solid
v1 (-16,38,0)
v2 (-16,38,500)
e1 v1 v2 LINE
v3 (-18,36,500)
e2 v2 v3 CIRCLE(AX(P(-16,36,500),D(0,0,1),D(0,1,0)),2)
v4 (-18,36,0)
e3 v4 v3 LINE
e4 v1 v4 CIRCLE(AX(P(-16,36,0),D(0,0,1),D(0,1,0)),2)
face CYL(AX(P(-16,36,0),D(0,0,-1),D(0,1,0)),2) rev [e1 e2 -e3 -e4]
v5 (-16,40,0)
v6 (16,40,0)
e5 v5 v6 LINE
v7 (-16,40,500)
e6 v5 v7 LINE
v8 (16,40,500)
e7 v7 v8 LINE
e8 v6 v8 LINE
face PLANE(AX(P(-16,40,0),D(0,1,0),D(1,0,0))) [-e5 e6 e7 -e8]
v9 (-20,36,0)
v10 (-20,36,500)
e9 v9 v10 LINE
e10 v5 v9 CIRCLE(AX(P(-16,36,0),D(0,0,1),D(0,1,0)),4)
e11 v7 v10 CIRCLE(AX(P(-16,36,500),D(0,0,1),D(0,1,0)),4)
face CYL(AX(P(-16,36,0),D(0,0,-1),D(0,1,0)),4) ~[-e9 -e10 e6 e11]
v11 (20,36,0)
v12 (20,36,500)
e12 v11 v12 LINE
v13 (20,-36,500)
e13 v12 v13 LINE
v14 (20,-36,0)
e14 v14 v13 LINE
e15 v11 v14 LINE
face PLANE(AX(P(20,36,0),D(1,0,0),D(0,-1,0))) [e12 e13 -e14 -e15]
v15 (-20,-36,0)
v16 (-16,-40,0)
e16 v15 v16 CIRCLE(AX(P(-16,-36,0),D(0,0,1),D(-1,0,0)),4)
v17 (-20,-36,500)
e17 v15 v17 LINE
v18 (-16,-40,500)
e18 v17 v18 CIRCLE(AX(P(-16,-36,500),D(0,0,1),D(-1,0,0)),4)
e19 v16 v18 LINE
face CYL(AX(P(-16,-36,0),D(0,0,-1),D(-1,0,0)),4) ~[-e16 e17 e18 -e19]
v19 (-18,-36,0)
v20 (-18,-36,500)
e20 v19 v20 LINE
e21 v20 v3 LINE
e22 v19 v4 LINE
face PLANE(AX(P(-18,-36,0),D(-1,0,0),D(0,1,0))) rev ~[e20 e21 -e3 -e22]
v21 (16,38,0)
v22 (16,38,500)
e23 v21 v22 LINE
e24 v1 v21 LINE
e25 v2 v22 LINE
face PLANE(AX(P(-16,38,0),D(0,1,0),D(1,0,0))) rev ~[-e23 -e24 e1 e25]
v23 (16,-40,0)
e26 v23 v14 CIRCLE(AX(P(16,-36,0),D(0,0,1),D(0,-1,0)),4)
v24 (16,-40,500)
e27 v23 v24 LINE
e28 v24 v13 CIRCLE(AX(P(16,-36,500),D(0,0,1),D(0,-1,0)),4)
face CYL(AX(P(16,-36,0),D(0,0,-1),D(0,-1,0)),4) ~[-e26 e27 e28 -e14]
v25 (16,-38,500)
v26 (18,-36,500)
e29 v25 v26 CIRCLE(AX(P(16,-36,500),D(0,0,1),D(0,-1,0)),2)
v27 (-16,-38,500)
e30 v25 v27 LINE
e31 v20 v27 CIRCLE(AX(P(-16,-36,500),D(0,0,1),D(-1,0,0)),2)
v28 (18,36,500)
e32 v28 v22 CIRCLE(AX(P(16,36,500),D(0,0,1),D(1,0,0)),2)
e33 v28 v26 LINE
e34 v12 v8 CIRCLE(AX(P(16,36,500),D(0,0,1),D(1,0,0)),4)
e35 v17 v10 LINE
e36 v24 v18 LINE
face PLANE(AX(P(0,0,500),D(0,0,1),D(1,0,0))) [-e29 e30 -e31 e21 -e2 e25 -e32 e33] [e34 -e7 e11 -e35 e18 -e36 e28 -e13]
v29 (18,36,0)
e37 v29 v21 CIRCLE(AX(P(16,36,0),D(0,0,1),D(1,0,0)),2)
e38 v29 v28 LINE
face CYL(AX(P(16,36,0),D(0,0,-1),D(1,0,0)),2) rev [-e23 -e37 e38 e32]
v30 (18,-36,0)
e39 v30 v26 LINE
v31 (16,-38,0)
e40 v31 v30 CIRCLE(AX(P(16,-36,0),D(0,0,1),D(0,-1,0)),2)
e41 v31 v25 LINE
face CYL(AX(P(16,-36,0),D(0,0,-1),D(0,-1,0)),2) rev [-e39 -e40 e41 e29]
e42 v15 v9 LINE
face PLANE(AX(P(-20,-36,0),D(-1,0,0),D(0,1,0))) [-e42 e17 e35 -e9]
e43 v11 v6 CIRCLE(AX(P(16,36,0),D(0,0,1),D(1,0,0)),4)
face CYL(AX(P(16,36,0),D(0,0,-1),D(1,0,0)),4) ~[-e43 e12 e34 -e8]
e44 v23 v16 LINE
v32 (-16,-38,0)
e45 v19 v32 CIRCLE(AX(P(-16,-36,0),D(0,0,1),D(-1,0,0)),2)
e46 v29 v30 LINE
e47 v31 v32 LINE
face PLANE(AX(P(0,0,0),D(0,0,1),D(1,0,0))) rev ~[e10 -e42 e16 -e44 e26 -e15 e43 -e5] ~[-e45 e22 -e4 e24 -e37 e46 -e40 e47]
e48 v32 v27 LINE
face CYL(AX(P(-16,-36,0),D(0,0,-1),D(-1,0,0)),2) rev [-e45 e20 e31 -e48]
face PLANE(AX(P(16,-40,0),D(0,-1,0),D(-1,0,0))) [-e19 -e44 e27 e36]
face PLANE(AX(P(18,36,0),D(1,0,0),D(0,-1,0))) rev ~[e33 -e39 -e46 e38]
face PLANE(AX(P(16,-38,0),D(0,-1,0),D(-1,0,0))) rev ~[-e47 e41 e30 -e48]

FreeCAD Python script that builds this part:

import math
import FreeCAD as App
import Part
import Sketcher
from FreeCAD import Vector

doc = App.newDocument("Part")
body = doc.addObject("PartDesign::Body", "Body")

# Sketch on XY plane
sketch1 = doc.addObject("Sketcher::SketchObject", "Sketch")
body.addObject(sketch1)
sketch1.AttachmentSupport = (doc.XY_Plane, [""])
sketch1.MapMode = "FlatFace"
sketch1.addGeometry([
    Part.LineSegment(Vector(-20, 36, 0), Vector(-20, -36, 0)),  # 0
    Part.ArcOfCircle(Part.Circle(Vector(-16, -36, 0), Vector(0, 0, 1), 4), math.radians(180), math.radians(270)),  # 1
    Part.LineSegment(Vector(-16, -40, 0), Vector(16, -40, 0)),  # 2
    Part.ArcOfCircle(Part.Circle(Vector(16, -36, 0), Vector(0, 0, 1), 4), math.radians(-90), math.radians(0)),  # 3
    Part.LineSegment(Vector(20, -36, 0), Vector(20, 36, 0)),  # 4
    Part.ArcOfCircle(Part.Circle(Vector(16, 36, 0), Vector(0, 0, 1), 4), math.radians(0), math.radians(90)),  # 5
    Part.LineSegment(Vector(16, 40, 0), Vector(-16, 40, 0)),  # 6
    Part.ArcOfCircle(Part.Circle(Vector(-16, 36, 0), Vector(0, 0, 1), 4), math.radians(90), math.radians(180)),  # 7
    Part.ArcOfCircle(Part.Circle(Vector(-16, 36, 0), Vector(0, 0, 1), 2), math.radians(90), math.radians(180)),  # 8
    Part.LineSegment(Vector(-16, 38, 0), Vector(16, 38, 0)),  # 9
    Part.ArcOfCircle(Part.Circle(Vector(16, 36, 0), Vector(0, 0, 1), 2), math.radians(0), math.radians(90)),  # 10
    Part.LineSegment(Vector(18, 36, 0), Vector(18, -36, 0)),  # 11
    Part.ArcOfCircle(Part.Circle(Vector(16, -36, 0), Vector(0, 0, 1), 2), math.radians(-90), math.radians(0)),  # 12
    Part.LineSegment(Vector(16, -38, 0), Vector(-16, -38, 0)),  # 13
    Part.ArcOfCircle(Part.Circle(Vector(-16, -36, 0), Vector(0, 0, 1), 2), math.radians(180), math.radians(270)),  # 14
    Part.LineSegment(Vector(-18, -36, 0), Vector(-18, 36, 0)),  # 15
], False)
sketch1.addConstraint([
    Sketcher.Constraint("Tangent", 0, 2, 1, 1),
    Sketcher.Constraint("Tangent", 1, 2, 2, 1),
    Sketcher.Constraint("Tangent", 2, 2, 3, 1),
    Sketcher.Constraint("Tangent", 3, 2, 4, 1),
    Sketcher.Constraint("Tangent", 4, 2, 5, 1),
    Sketcher.Constraint("Tangent", 5, 2, 6, 1),
    Sketcher.Constraint("Tangent", 6, 2, 7, 1),
    Sketcher.Constraint("Tangent", 7, 2, 0, 1),
    Sketcher.Constraint("Tangent", 8, 1, 9, 1),
    Sketcher.Constraint("Tangent", 9, 2, 10, 2),
    Sketcher.Constraint("Tangent", 10, 1, 11, 1),
    Sketcher.Constraint("Tangent", 11, 2, 12, 2),
    Sketcher.Constraint("Tangent", 12, 1, 13, 1),
    Sketcher.Constraint("Tangent", 13, 2, 14, 2),
    Sketcher.Constraint("Tangent", 14, 1, 15, 1),
    Sketcher.Constraint("Tangent", 15, 2, 8, 2),
    Sketcher.Constraint("Vertical", 0),
    Sketcher.Constraint("Horizontal", 2),
    Sketcher.Constraint("Vertical", 4),
    Sketcher.Constraint("Horizontal", 6),
    Sketcher.Constraint("Horizontal", 9),
    Sketcher.Constraint("Vertical", 11),
    Sketcher.Constraint("Horizontal", 13),
    Sketcher.Constraint("Vertical", 15),
    Sketcher.Constraint("Coincident", 8, 3, 7, 3),
    Sketcher.Constraint("Coincident", 10, 3, 5, 3),
    Sketcher.Constraint("Coincident", 12, 3, 3, 3),
    Sketcher.Constraint("Equal", 1, 3),
    Sketcher.Constraint("Equal", 3, 5),
    Sketcher.Constraint("Equal", 5, 7),
    Sketcher.Constraint("Equal", 12, 14),
    Sketcher.Constraint("Symmetric", 1, 3, 5, 3, -1, 1),
    Sketcher.Constraint("Radius", 1, 4.0),
    Sketcher.Constraint("Radius", 8, 2.0),
    Sketcher.Constraint("DistanceX", 0, 2, -1, 1, 20.0),
    Sketcher.Constraint("DistanceY", 1, 2, -1, 1, 40.0),
])
pad1 = doc.addObject("PartDesign::Pad", "Pad")
body.addObject(pad1)
pad1.Profile = sketch1
pad1.Length = 500

doc.recompute()
